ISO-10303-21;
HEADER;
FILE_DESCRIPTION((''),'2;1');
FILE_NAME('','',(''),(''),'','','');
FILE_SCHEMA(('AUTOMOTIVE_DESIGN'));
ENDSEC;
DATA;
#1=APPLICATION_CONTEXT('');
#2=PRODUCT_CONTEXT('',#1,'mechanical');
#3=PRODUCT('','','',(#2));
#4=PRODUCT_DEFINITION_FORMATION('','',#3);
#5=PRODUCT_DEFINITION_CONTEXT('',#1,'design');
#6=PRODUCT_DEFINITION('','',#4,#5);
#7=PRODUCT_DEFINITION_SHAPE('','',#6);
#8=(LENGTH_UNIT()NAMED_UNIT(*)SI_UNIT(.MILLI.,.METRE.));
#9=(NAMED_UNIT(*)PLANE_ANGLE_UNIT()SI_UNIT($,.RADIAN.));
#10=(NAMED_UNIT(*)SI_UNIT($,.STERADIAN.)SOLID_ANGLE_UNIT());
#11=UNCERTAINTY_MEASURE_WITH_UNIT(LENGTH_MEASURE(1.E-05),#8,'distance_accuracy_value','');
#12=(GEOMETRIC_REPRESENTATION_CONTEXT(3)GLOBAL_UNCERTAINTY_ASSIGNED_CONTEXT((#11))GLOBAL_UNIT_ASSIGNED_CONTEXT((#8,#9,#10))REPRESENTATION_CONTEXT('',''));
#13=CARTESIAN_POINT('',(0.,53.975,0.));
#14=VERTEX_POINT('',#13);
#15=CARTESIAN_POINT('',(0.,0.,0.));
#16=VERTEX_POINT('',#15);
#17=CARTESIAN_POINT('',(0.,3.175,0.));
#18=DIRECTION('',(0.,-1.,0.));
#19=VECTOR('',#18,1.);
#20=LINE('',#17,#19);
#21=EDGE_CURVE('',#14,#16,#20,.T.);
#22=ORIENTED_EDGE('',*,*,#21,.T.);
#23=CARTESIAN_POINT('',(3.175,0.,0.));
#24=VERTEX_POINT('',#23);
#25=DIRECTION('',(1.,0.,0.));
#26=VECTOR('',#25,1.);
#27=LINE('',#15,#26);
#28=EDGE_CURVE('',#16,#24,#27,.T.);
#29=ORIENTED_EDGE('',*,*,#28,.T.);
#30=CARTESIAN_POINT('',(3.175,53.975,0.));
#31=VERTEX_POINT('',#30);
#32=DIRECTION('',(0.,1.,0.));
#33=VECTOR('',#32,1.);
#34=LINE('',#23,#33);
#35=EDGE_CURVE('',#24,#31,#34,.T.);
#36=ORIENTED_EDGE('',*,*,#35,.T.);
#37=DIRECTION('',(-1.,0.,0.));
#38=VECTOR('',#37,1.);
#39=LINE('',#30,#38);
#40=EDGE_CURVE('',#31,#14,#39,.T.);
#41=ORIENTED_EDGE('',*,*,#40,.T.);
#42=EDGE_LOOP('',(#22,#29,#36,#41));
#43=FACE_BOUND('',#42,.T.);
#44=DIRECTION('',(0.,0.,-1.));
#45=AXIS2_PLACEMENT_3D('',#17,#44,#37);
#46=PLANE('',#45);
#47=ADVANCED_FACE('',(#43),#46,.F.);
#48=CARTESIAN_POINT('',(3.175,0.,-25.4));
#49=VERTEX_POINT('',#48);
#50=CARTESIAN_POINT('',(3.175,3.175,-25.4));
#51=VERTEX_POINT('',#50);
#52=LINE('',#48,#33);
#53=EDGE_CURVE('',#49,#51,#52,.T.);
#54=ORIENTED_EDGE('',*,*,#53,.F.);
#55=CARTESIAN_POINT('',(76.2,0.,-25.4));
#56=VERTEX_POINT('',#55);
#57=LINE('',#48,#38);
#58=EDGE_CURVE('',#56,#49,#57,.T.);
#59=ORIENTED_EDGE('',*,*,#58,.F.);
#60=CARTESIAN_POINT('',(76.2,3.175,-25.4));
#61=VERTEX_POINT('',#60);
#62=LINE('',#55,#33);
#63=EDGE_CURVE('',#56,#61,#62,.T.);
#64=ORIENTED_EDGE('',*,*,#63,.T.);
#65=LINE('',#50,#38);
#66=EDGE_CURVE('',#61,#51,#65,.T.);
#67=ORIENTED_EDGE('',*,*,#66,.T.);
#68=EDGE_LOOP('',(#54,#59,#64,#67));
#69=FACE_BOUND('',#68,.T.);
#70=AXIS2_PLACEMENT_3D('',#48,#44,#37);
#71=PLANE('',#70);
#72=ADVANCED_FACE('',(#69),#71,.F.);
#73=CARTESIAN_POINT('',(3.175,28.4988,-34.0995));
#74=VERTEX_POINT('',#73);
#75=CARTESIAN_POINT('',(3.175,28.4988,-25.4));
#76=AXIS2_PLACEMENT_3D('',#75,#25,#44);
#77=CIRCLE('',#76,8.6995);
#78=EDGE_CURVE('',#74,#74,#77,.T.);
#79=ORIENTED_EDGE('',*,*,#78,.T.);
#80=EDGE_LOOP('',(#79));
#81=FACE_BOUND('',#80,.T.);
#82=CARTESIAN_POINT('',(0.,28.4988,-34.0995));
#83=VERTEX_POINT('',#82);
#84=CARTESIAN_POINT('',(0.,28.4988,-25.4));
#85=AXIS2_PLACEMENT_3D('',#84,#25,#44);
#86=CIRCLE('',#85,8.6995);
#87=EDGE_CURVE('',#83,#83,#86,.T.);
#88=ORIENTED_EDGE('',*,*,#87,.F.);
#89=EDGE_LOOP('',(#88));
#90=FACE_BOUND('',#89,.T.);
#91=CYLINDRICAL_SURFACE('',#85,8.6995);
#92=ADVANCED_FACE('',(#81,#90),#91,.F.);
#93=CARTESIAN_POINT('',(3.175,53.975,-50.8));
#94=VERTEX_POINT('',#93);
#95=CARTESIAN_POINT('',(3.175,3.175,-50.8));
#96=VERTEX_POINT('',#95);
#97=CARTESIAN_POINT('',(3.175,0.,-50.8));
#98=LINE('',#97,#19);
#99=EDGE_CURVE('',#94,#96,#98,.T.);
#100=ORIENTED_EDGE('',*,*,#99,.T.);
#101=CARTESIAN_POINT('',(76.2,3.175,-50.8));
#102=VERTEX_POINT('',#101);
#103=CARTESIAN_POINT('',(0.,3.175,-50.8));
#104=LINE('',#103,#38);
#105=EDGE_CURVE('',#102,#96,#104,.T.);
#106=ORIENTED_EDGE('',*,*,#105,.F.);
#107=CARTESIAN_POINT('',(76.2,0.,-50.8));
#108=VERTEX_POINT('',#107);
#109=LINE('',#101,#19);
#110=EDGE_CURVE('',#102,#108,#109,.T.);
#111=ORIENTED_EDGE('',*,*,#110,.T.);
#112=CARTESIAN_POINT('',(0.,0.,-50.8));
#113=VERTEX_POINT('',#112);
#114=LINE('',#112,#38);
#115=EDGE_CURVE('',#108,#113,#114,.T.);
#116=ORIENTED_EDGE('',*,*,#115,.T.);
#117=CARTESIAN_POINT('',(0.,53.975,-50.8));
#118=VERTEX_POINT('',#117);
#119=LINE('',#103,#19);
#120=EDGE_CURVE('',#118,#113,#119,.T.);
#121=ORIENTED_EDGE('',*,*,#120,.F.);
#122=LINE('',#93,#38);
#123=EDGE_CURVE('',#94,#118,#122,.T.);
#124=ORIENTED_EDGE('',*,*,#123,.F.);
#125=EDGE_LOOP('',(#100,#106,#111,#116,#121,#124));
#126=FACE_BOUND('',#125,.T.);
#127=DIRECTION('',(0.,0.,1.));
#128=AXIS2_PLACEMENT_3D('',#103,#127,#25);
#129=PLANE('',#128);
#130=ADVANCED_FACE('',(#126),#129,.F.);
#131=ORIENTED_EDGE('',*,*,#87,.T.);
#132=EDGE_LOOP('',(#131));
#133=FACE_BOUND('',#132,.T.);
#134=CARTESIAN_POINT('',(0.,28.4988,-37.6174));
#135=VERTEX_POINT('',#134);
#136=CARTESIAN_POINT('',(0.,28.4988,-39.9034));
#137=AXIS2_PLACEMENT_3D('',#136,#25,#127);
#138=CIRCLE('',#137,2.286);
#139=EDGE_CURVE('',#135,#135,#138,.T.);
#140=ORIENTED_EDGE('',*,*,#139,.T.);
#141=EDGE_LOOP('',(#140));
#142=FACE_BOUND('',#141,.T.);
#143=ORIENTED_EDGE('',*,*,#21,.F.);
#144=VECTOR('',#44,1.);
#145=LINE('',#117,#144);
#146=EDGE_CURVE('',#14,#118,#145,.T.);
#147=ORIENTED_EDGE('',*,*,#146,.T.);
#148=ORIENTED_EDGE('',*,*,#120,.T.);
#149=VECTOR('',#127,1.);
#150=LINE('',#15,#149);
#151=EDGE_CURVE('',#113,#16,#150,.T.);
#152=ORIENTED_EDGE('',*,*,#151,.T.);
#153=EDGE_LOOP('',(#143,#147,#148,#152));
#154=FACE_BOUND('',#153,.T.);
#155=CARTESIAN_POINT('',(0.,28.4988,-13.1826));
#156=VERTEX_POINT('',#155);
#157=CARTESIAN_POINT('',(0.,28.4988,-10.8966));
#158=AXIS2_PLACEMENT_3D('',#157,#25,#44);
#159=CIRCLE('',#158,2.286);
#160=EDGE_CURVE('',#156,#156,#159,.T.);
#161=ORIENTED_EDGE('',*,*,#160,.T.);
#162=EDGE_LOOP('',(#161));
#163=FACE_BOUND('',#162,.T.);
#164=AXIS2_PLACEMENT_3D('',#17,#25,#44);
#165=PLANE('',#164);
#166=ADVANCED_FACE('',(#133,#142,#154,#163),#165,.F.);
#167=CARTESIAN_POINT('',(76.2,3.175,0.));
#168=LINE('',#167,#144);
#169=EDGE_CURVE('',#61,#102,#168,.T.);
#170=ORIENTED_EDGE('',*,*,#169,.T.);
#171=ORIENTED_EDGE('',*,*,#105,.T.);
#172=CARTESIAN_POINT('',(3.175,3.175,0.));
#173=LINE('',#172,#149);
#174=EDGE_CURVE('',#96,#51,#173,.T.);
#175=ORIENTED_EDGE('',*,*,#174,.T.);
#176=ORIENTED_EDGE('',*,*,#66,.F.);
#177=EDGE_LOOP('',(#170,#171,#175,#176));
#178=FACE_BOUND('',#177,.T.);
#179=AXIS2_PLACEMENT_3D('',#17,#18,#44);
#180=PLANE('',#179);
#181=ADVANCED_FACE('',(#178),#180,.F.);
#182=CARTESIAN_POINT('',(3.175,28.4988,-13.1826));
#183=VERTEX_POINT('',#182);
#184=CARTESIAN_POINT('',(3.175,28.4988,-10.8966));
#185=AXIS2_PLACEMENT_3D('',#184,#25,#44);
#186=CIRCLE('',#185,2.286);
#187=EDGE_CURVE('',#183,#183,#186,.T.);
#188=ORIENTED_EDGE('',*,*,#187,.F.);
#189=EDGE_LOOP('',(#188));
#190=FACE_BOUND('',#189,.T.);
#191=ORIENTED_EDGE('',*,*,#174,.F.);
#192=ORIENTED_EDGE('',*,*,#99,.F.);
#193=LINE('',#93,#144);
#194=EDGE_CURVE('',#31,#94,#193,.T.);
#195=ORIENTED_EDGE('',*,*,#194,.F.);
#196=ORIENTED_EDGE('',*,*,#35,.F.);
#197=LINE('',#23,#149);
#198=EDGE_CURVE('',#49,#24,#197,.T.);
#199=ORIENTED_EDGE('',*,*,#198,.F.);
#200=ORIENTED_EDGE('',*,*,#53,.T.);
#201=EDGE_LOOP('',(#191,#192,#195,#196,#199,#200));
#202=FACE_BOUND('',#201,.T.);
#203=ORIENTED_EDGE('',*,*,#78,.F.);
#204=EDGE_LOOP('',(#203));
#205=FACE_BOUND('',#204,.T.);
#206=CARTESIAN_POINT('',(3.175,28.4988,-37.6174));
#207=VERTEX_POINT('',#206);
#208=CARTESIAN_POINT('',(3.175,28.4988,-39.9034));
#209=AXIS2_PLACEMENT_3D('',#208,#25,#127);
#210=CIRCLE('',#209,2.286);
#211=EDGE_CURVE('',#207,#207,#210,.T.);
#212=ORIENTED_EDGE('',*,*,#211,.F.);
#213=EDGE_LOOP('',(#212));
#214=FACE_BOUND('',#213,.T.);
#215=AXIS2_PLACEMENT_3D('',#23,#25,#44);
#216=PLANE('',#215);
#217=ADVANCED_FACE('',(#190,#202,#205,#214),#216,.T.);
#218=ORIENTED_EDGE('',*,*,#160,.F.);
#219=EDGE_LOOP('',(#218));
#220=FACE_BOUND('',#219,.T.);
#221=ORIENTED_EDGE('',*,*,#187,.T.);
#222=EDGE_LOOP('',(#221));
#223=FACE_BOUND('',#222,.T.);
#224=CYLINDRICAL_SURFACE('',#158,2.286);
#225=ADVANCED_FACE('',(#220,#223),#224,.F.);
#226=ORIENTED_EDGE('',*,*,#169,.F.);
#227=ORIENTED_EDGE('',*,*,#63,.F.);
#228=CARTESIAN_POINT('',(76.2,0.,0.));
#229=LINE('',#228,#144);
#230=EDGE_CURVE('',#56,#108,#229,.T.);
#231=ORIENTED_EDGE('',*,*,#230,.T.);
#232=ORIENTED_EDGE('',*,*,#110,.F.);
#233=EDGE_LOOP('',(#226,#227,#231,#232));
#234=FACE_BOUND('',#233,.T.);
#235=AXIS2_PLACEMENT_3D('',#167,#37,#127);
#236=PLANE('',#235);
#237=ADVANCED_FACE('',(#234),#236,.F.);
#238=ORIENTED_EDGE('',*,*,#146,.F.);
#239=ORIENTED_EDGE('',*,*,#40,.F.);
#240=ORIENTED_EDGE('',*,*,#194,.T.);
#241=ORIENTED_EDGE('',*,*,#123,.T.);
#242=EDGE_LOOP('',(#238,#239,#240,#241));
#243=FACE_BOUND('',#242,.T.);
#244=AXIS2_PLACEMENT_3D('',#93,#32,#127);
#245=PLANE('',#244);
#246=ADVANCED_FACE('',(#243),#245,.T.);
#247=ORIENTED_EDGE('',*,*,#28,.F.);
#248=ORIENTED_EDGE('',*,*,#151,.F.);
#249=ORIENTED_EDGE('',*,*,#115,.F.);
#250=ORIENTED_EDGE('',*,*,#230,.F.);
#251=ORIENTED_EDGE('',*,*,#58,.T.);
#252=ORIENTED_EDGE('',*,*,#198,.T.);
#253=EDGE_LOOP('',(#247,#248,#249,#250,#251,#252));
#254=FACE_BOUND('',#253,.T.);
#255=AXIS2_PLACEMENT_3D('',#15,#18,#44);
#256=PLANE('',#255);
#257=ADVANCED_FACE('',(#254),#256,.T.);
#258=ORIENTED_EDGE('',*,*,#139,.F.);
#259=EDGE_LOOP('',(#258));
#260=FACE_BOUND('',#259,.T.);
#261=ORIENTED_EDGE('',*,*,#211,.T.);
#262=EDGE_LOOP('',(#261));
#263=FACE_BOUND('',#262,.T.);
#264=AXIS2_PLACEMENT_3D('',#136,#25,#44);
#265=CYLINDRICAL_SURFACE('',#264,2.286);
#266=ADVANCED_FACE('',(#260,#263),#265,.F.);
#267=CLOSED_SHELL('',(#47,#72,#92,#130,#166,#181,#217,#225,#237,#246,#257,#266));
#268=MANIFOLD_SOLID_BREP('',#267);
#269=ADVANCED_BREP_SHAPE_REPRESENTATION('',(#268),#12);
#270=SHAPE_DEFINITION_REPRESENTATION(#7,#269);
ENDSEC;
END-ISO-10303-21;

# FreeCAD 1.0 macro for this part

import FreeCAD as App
import Part
import Sketcher

V = App.Vector
Q = App.Units.Quantity

doc = App.newDocument("Part")
body = doc.addObject("PartDesign::Body", "Body")

sketch1 = body.newObject("Sketcher::SketchObject", "Sketch")
sketch1.AttachmentSupport = (doc.getObject("XZ_Plane"), [""])
sketch1.MapMode = "FlatFace"
sketch1.addGeometry([
    Part.LineSegment(V(0, -50.8, 0), V(0, 0, 0)),
    Part.LineSegment(V(0, 0, 0), V(76.2, 0, 0)),
    Part.LineSegment(V(76.2, 0, 0), V(76.2, -50.8, 0)),
    Part.LineSegment(V(76.2, -50.8, 0), V(0, -50.8, 0)),
], False)
sketch1.addConstraint([
    Sketcher.Constraint("Coincident", 0, 2, 1, 1),
    Sketcher.Constraint("Coincident", 1, 2, 2, 1),
    Sketcher.Constraint("Coincident", 2, 2, 3, 1),
    Sketcher.Constraint("Coincident", 3, 2, 0, 1),
    Sketcher.Constraint("Vertical", 0),
    Sketcher.Constraint("Horizontal", 1),
    Sketcher.Constraint("Vertical", 2),
    Sketcher.Constraint("Horizontal", 3),
    Sketcher.Constraint("Coincident", 0, 2, -1, 1),
    Sketcher.Constraint("DistanceX", 1, 1, 1, 2, Q("3 in")),
    Sketcher.Constraint("DistanceY", 0, 1, 0, 2, Q("2 in")),
])
pad1 = body.newObject("PartDesign::Pad", "Pad")
pad1.Profile = sketch1
pad1.Length = Q("0.125 in")
pad1.Reversed = True

sketch2 = body.newObject("Sketcher::SketchObject", "Sketch001")
sketch2.AttachmentSupport = (doc.getObject("YZ_Plane"), [""])
sketch2.MapMode = "FlatFace"
sketch2.addGeometry([
    Part.LineSegment(V(53.975, -50.8, 0), V(0, -50.8, 0)),
    Part.LineSegment(V(0, -50.8, 0), V(0, 0, 0)),
    Part.LineSegment(V(0, 0, 0), V(53.975, 0, 0)),
    Part.LineSegment(V(53.975, 0, 0), V(53.975, -50.8, 0)),
], False)
sketch2.addConstraint([
    Sketcher.Constraint("Coincident", 0, 2, 1, 1),
    Sketcher.Constraint("Coincident", 1, 2, 2, 1),
    Sketcher.Constraint("Coincident", 2, 2, 3, 1),
    Sketcher.Constraint("Coincident", 3, 2, 0, 1),
    Sketcher.Constraint("Horizontal", 0),
    Sketcher.Constraint("Vertical", 1),
    Sketcher.Constraint("Horizontal", 2),
    Sketcher.Constraint("Vertical", 3),
    Sketcher.Constraint("Coincident", 1, 2, -1, 1),
    Sketcher.Constraint("DistanceY", 1, 1, 1, 2, Q("2 in")),
    Sketcher.Constraint("DistanceX", 0, 2, 0, 1, Q("2.125 in")),
])
pad2 = body.newObject("PartDesign::Pad", "Pad001")
pad2.Profile = sketch2
pad2.Length = Q("0.125 in")

sketch3 = body.newObject("Sketcher::SketchObject", "Sketch002")
sketch3.AttachmentSupport = (doc.getObject("YZ_Plane"), [""])
sketch3.MapMode = "FlatFace"
sketch3.AttachmentOffset = App.Placement(V(0, 0, 0.125 * 25.4), App.Rotation())
sketch3.addGeometry([
    Part.Circle(V(28.4988, -10.8966, 0), V(0, 0, 1), 2.286),
    Part.Circle(V(28.4988, -39.9034, 0), V(0, 0, 1), 2.286),
    Part.Circle(V(28.4988, -25.4, 0), V(0, 0, 1), 8.6995),
], False)
sketch3.addConstraint([
    Sketcher.Constraint("Equal", 0, 1),
    Sketcher.Constraint("Vertical", 0, 3, 1, 3),
    Sketcher.Constraint("Vertical", 1, 3, 2, 3),
    Sketcher.Constraint("Diameter", 0, Q("0.18 in")),
    Sketcher.Constraint("Diameter", 2, Q("0.685 in")),
    Sketcher.Constraint("DistanceY", 2, 3, -1, 1, Q("1 in")),
    Sketcher.Constraint("DistanceX", -1, 1, 0, 3, Q("1.122 in")),
    Sketcher.Constraint("DistanceY", 0, 3, -1, 1, Q("0.429 in")),
    Sketcher.Constraint("DistanceY", 1, 3, -1, 1, Q("1.571 in")),
])
pocket1 = body.newObject("PartDesign::Pocket", "Pocket")
pocket1.Profile = sketch3
pocket1.Length = Q("0.125 in")

sketch4 = body.newObject("Sketcher::SketchObject", "Sketch003")
sketch4.AttachmentSupport = (doc.getObject("XZ_Plane"), [""])
sketch4.MapMode = "FlatFace"
sketch4.AttachmentOffset = App.Placement(V(0, 0, -0.125 * 25.4), App.Rotation())
sketch4.addGeometry([
    Part.LineSegment(V(3.175, -25.4, 0), V(3.175, 0, 0)),
    Part.LineSegment(V(3.175, 0, 0), V(76.2, 0, 0)),
    Part.LineSegment(V(76.2, 0, 0), V(76.2, -25.4, 0)),
    Part.LineSegment(V(76.2, -25.4, 0), V(3.175, -25.4, 0)),
], False)
sketch4.addConstraint([
    Sketcher.Constraint("Coincident", 0, 2, 1, 1),
    Sketcher.Constraint("Coincident", 1, 2, 2, 1),
    Sketcher.Constraint("Coincident", 2, 2, 3, 1),
    Sketcher.Constraint("Coincident", 3, 2, 0, 1),
    Sketcher.Constraint("Vertical", 0),
    Sketcher.Constraint("Horizontal", 1),
    Sketcher.Constraint("Vertical", 2),
    Sketcher.Constraint("Horizontal", 3),
    Sketcher.Constraint("PointOnObject", 0, 2, -1),
    Sketcher.Constraint("DistanceY", 0, 1, 0, 2, Q("1 in")),
    Sketcher.Constraint("DistanceX", -1, 1, 1, 2, Q("3 in")),
    Sketcher.Constraint("DistanceX", 1, 1, 1, 2, Q("2.875 in")),
])
pocket2 = body.newObject("PartDesign::Pocket", "Pocket001")
pocket2.Profile = sketch4
pocket2.Length = Q("0.125 in")
pocket2.Reversed = True

doc.recompute()
